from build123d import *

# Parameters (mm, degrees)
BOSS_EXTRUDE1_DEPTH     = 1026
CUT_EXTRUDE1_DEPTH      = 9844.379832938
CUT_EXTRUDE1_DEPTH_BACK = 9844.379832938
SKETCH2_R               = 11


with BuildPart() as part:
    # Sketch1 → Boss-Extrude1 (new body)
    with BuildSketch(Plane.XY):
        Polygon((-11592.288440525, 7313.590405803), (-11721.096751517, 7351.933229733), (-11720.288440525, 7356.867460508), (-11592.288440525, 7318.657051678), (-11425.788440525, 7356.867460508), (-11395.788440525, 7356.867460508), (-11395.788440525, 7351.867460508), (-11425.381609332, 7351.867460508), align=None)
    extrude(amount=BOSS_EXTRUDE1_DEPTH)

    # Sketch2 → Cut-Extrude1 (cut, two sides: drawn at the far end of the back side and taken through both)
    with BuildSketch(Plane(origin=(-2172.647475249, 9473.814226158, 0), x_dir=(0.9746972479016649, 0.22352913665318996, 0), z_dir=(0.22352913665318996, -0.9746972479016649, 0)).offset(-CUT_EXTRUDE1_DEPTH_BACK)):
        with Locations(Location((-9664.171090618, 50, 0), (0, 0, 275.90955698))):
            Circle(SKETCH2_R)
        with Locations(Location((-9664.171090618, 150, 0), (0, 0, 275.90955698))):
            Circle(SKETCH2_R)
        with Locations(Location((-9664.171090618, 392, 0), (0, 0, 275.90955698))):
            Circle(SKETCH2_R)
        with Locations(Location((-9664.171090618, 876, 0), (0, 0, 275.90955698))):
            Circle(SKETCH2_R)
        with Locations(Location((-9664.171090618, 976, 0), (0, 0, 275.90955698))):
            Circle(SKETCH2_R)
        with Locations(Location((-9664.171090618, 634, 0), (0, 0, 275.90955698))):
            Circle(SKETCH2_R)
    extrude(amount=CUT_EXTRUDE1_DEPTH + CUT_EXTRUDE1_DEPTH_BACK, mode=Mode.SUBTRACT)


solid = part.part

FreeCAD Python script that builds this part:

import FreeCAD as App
import Part
import Sketcher


def add_polygon(sketch, points):
    """Adds a closed chain of lines whose ends are joined by coincident constraints."""
    first, n = sketch.GeometryCount, len(points)
    for a, b in zip(points, points[1:] + points[:1]):
        sketch.addGeometry(Part.LineSegment(App.Vector(*a, 0), App.Vector(*b, 0)), False)
    for i in range(n):
        sketch.addConstraint(Sketcher.Constraint("Coincident", first + i, 2, first + (i + 1) % n, 1))

doc = App.newDocument("Part")
body = doc.addObject("PartDesign::Body", "Body")

# Sketch on XY plane
sketch1 = body.newObject("Sketcher::SketchObject", "Sketch")
sketch1.AttachmentSupport = (doc.getObject("XY_Plane"), [""])
sketch1.MapMode = "FlatFace"
add_polygon(sketch1, [(-11721, 7352), (-11592, 7314), (-11425, 7352), (-11396, 7352), (-11396, 7357), (-11426, 7357), (-11592, 7319), (-11720, 7357)])  # lines 0-7
sketch1.addConstraint([
    Sketcher.Constraint("Horizontal", 2),
    Sketcher.Constraint("Vertical", 3),
    Sketcher.Constraint("Horizontal", 4),
    Sketcher.Constraint("Horizontal", 4, 2, 6, 2),
    Sketcher.Constraint("Vertical", 0, 2, 5, 2),
    Sketcher.Constraint("DistanceX", 4, 2, 4, 1, 30.0),
    Sketcher.Constraint("DistanceY", 3, 1, 3, 2, 5.0),
    Sketcher.Constraint("Distance", 7, 5.0),
    Sketcher.Constraint("DistanceX", 6, 2, 5, 2, 128.0),
    Sketcher.Constraint("DistanceX", 0, 2, 2, 2, 196.5),
    Sketcher.Constraint("DistanceX", 2, 1, 2, 2, 29.593169),
    Sketcher.Constraint("Distance", 0, 134.394022),
    Sketcher.Constraint("Distance", 6, 133.581568),
    Sketcher.Constraint("DistanceX", 0, 2, -1, 1, 11592.288441),
    Sketcher.Constraint("DistanceY", -1, 1, 1, 2, 7351.867461),
    Sketcher.Constraint("DistanceX", 7, 2, -1, 1, 11721.096752),
])
pad1 = body.newObject("PartDesign::Pad", "Pad")
pad1.Profile = sketch1
pad1.Length = 1026

# Sketch on an angled plane
sketch2 = body.newObject("Sketcher::SketchObject", "Sketch001")
sketch2.Placement = App.Placement(App.Vector(-2172.647472, 9473.814225, 0), App.Rotation(App.Vector(0.974697248, 0.223529137, 0), App.Vector(0, 0, 1), App.Vector(0.223529137, -0.974697248, 0), "ZXY"))
sketch2.addGeometry([
    Part.Circle(App.Vector(-9664, 50, 0), App.Vector(0, 0, 1), 11),  # 0
    Part.Circle(App.Vector(-9664, 150, 0), App.Vector(0, 0, 1), 11),  # 1
    Part.Circle(App.Vector(-9664, 392, 0), App.Vector(0, 0, 1), 11),  # 2
    Part.Circle(App.Vector(-9664, 876, 0), App.Vector(0, 0, 1), 11),  # 3
    Part.Circle(App.Vector(-9664, 976, 0), App.Vector(0, 0, 1), 11),  # 4
    Part.Circle(App.Vector(-9664, 634, 0), App.Vector(0, 0, 1), 11),  # 5
], False)
sketch2.addConstraint([
    Sketcher.Constraint("Equal", 0, 1),
    Sketcher.Constraint("Equal", 1, 2),
    Sketcher.Constraint("Equal", 2, 3),
    Sketcher.Constraint("Equal", 3, 4),
    Sketcher.Constraint("Equal", 4, 5),
    Sketcher.Constraint("Vertical", 0, 3, 1, 3),
    Sketcher.Constraint("Vertical", 1, 3, 2, 3),
    Sketcher.Constraint("Vertical", 2, 3, 3, 3),
    Sketcher.Constraint("Vertical", 3, 3, 4, 3),
    Sketcher.Constraint("Vertical", 4, 3, 5, 3),
    Sketcher.Constraint("Diameter", 0, 22.0),
    Sketcher.Constraint("DistanceY", -1, 1, 0, 3, 50.0),
    Sketcher.Constraint("DistanceY", -1, 1, 1, 3, 150.0),
    Sketcher.Constraint("DistanceY", -1, 1, 2, 3, 392.0),
    Sketcher.Constraint("DistanceY", -1, 1, 3, 3, 876.000001),
    Sketcher.Constraint("DistanceY", -1, 1, 4, 3, 976.000001),
    Sketcher.Constraint("DistanceY", -1, 1, 5, 3, 634.0),
    Sketcher.Constraint("DistanceX", 0, 3, -1, 1, 9664.171094),
])
pocket1 = body.newObject("PartDesign::Pocket", "Pocket")
pocket1.Profile = sketch2
pocket1.Type = "ThroughAll"
pocket1.Midplane = True

doc.recompute()
